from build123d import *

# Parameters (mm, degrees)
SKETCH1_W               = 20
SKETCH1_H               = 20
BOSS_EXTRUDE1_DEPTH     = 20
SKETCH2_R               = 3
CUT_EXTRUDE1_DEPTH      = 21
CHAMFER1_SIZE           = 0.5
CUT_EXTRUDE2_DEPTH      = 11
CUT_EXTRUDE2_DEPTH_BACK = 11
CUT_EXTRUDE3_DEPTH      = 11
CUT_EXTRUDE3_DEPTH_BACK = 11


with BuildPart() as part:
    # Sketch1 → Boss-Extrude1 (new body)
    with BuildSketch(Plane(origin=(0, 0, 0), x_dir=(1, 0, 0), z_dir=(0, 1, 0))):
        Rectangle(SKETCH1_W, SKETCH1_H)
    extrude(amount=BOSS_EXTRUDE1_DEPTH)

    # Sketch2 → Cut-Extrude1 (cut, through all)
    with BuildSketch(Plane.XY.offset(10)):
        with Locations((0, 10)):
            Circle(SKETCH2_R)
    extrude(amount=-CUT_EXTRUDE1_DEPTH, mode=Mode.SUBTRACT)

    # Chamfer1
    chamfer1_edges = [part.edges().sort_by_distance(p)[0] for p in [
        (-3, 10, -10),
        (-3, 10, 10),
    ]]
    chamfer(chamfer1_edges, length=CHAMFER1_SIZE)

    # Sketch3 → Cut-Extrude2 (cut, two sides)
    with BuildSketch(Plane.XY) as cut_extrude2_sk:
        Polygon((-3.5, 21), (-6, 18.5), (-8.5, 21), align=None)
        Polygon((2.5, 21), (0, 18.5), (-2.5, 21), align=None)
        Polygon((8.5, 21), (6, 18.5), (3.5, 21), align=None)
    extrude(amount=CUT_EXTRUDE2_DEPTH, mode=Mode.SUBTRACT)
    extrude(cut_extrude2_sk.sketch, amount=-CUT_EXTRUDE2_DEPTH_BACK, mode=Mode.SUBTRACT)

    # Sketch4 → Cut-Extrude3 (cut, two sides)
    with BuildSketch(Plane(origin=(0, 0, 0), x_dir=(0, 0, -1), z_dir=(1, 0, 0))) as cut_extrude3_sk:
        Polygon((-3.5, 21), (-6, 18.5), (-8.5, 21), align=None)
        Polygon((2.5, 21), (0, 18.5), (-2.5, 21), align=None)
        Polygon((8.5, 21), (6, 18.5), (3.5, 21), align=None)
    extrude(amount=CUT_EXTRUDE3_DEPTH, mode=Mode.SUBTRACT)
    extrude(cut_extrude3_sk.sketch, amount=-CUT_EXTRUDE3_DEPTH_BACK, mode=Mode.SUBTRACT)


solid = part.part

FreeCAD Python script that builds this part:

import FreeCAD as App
import Part
import Sketcher

V = App.Vector
Q = App.Units.Quantity


def edges_at(feature, points):
    """Names of the edges that pass closest to the given points."""
    edges = feature.Shape.Edges
    near = lambda p: min(range(len(edges)), key=lambda i: edges[i].distToShape(Part.Vertex(*p))[0])
    return sorted({f"Edge{near(p) + 1}" for p in points})

doc = App.newDocument("Part")
params = doc.addObject("Spreadsheet::Sheet", "Params")
for row, (alias, value) in enumerate([
    ("sketch1_width", "20 mm"),
    ("pad1_length", "20 mm"),
    ("sketch2_diameter", "6 mm"),
    ("chamfer_size", "0.5 mm"),
    ("sketch3_width", "5 mm"),
    ("sketch4_height", "5 mm"),
], start=1):
    params.set(f"A{row}", alias)
    params.set(f"B{row}", "=" + value)
    params.setAlias(f"B{row}", alias)

body = doc.addObject("PartDesign::Body", "Body")

# Sketch on XZ plane
sketch1 = body.newObject("Sketcher::SketchObject", "Sketch")
sketch1.AttachmentSupport = (doc.getObject("XZ_Plane"), [""])
sketch1.MapMode = "FlatFace"
sketch1.addGeometry([
    Part.LineSegment(V(-10, -10, 0), V(-10, 10, 0)),
    Part.LineSegment(V(-10, 10, 0), V(10, 10, 0)),
    Part.LineSegment(V(10, 10, 0), V(10, -10, 0)),
    Part.LineSegment(V(10, -10, 0), V(-10, -10, 0)),
], False)
sketch1.addConstraint([
    Sketcher.Constraint("Coincident", 0, 2, 1, 1),
    Sketcher.Constraint("Coincident", 1, 2, 2, 1),
    Sketcher.Constraint("Coincident", 2, 2, 3, 1),
    Sketcher.Constraint("Coincident", 3, 2, 0, 1),
    Sketcher.Constraint("Vertical", 0),
    Sketcher.Constraint("Horizontal", 1),
    Sketcher.Constraint("Vertical", 2),
    Sketcher.Constraint("Horizontal", 3),
    Sketcher.Constraint("Symmetric", 0, 2, 2, 2, -1, 1),
    Sketcher.Constraint("Equal", 3, 0),
    Sketcher.Constraint("DistanceX", 1, 1, 1, 2, Q("20 mm")),
])
sketch1.setExpression("Constraints[10]", "Params.sketch1_width")
pad1 = body.newObject("PartDesign::Pad", "Pad")
pad1.Profile = sketch1
pad1.setExpression("Length", "Params.pad1_length")
pad1.Reversed = True

# Sketch on XY plane
sketch2 = body.newObject("Sketcher::SketchObject", "Sketch001")
sketch2.AttachmentSupport = (doc.getObject("XY_Plane"), [""])
sketch2.MapMode = "FlatFace"
sketch2.AttachmentOffset = App.Placement(V(0, 0, 10), App.Rotation())
sketch2.addGeometry(Part.Circle(V(0, 10, 0), V(0, 0, 1), 3), False)
sketch2.addConstraint([
    Sketcher.Constraint("PointOnObject", 0, 3, -2),
    Sketcher.Constraint("Diameter", 0, Q("6 mm")),
    Sketcher.Constraint("DistanceY", -1, 1, 0, 3, Q("10 mm")),
])
sketch2.setExpression("Constraints[1]", "Params.sketch2_diameter")
pocket1 = body.newObject("PartDesign::Pocket", "Pocket")
pocket1.Profile = sketch2
pocket1.Type = "ThroughAll"
doc.recompute()

chamfer = body.newObject("PartDesign::Chamfer", "Chamfer")
chamfer.Base = (pocket1, edges_at(pocket1, [(-3, 10, -10), (-3, 10, 10)]))
chamfer.setExpression("Size", "Params.chamfer_size")

# Sketch on XY plane
sketch3 = body.newObject("Sketcher::SketchObject", "Sketch002")
sketch3.AttachmentSupport = (doc.getObject("XY_Plane"), [""])
sketch3.MapMode = "FlatFace"
sketch3.addGeometry([
    Part.LineSegment(V(-6, 18.5, 0), V(-3.5, 21, 0)),  # 0
    Part.LineSegment(V(-3.5, 21, 0), V(-8.5, 21, 0)),  # 1
    Part.LineSegment(V(-8.5, 21, 0), V(-6, 18.5, 0)),  # 2
    Part.LineSegment(V(0, 18.5, 0), V(2.5, 21, 0)),  # 3
    Part.LineSegment(V(2.5, 21, 0), V(-2.5, 21, 0)),  # 4
    Part.LineSegment(V(-2.5, 21, 0), V(0, 18.5, 0)),  # 5
    Part.LineSegment(V(6, 18.5, 0), V(8.5, 21, 0)),  # 6
    Part.LineSegment(V(8.5, 21, 0), V(3.5, 21, 0)),  # 7
    Part.LineSegment(V(3.5, 21, 0), V(6, 18.5, 0)),  # 8
], False)
sketch3.addConstraint([
    Sketcher.Constraint("Coincident", 0, 2, 1, 1),
    Sketcher.Constraint("Coincident", 1, 2, 2, 1),
    Sketcher.Constraint("Coincident", 2, 2, 0, 1),
    Sketcher.Constraint("Coincident", 3, 2, 4, 1),
    Sketcher.Constraint("Coincident", 4, 2, 5, 1),
    Sketcher.Constraint("Coincident", 5, 2, 3, 1),
    Sketcher.Constraint("Coincident", 6, 2, 7, 1),
    Sketcher.Constraint("Coincident", 7, 2, 8, 1),
    Sketcher.Constraint("Coincident", 8, 2, 6, 1),
    Sketcher.Constraint("Horizontal", 1),
    Sketcher.Constraint("Horizontal", 4),
    Sketcher.Constraint("Horizontal", 7),
    Sketcher.Constraint("Symmetric", 1, 2, 6, 2, -2),
    Sketcher.Constraint("Symmetric", 2, 2, 8, 2, -2),
    Sketcher.Constraint("PointOnObject", 5, 2, -2),
    Sketcher.Constraint("Perpendicular", 0, 2),
    Sketcher.Constraint("Perpendicular", 2, 3),
    Sketcher.Constraint("Perpendicular", 3, 5),
    Sketcher.Constraint("Perpendicular", 5, 6),
    Sketcher.Constraint("Perpendicular", 6, 8),
    Sketcher.Constraint("Horizontal", 1, 2, 3, 2),
    Sketcher.Constraint("Horizontal", 2, 2, 5, 2),
    Sketcher.Constraint("DistanceX", 1, 2, 1, 1, Q("5 mm")),
    Sketcher.Constraint("DistanceY", -1, 1, 0, 2, Q("21 mm")),
    Sketcher.Constraint("DistanceX", 2, 2, -1, 1, Q("6 mm")),
])
sketch3.setExpression("Constraints[22]", "Params.sketch3_width")
pocket2 = body.newObject("PartDesign::Pocket", "Pocket001")
pocket2.Profile = sketch3
pocket2.Type = "ThroughAll"
pocket2.Midplane = True

# Sketch on YZ plane
sketch4 = body.newObject("Sketcher::SketchObject", "Sketch003")
sketch4.AttachmentSupport = (doc.getObject("YZ_Plane"), [""])
sketch4.MapMode = "FlatFace"
sketch4.addGeometry([
    Part.LineSegment(V(18.5, 6, 0), V(21, 3.5, 0)),  # 0
    Part.LineSegment(V(21, 3.5, 0), V(21, 8.5, 0)),  # 1
    Part.LineSegment(V(21, 8.5, 0), V(18.5, 6, 0)),  # 2
    Part.LineSegment(V(18.5, 0, 0), V(21, -2.5, 0)),  # 3
    Part.LineSegment(V(21, -2.5, 0), V(21, 2.5, 0)),  # 4
    Part.LineSegment(V(21, 2.5, 0), V(18.5, 0, 0)),  # 5
    Part.LineSegment(V(18.5, -6, 0), V(21, -8.5, 0)),  # 6
    Part.LineSegment(V(21, -8.5, 0), V(21, -3.5, 0)),  # 7
    Part.LineSegment(V(21, -3.5, 0), V(18.5, -6, 0)),  # 8
], False)
sketch4.addConstraint([
    Sketcher.Constraint("Coincident", 0, 2, 1, 1),
    Sketcher.Constraint("Coincident", 1, 2, 2, 1),
    Sketcher.Constraint("Coincident", 2, 2, 0, 1),
    Sketcher.Constraint("Coincident", 3, 2, 4, 1),
    Sketcher.Constraint("Coincident", 4, 2, 5, 1),
    Sketcher.Constraint("Coincident", 5, 2, 3, 1),
    Sketcher.Constraint("Coincident", 6, 2, 7, 1),
    Sketcher.Constraint("Coincident", 7, 2, 8, 1),
    Sketcher.Constraint("Coincident", 8, 2, 6, 1),
    Sketcher.Constraint("Vertical", 1),
    Sketcher.Constraint("Vertical", 4),
    Sketcher.Constraint("Vertical", 7),
    Sketcher.Constraint("Symmetric", 1, 2, 6, 2, -1),
    Sketcher.Constraint("Symmetric", 2, 2, 8, 2, -1),
    Sketcher.Constraint("PointOnObject", 5, 2, -1),
    Sketcher.Constraint("Perpendicular", 0, 2),
    Sketcher.Constraint("Perpendicular", 2, 3),
    Sketcher.Constraint("Perpendicular", 3, 5),
    Sketcher.Constraint("Perpendicular", 5, 6),
    Sketcher.Constraint("Perpendicular", 6, 8),
    Sketcher.Constraint("Vertical", 1, 2, 3, 2),
    Sketcher.Constraint("Vertical", 2, 2, 5, 2),
    Sketcher.Constraint("DistanceY", 1, 1, 1, 2, Q("5 mm")),
    Sketcher.Constraint("DistanceX", -1, 1, 0, 2, Q("21 mm")),
    Sketcher.Constraint("DistanceY", -1, 1, 2, 2, Q("6 mm")),
])
sketch4.setExpression("Constraints[22]", "Params.sketch4_height")
pocket3 = body.newObject("PartDesign::Pocket", "Pocket002")
pocket3.Profile = sketch4
pocket3.Type = "ThroughAll"
pocket3.Midplane = True

doc.recompute()
